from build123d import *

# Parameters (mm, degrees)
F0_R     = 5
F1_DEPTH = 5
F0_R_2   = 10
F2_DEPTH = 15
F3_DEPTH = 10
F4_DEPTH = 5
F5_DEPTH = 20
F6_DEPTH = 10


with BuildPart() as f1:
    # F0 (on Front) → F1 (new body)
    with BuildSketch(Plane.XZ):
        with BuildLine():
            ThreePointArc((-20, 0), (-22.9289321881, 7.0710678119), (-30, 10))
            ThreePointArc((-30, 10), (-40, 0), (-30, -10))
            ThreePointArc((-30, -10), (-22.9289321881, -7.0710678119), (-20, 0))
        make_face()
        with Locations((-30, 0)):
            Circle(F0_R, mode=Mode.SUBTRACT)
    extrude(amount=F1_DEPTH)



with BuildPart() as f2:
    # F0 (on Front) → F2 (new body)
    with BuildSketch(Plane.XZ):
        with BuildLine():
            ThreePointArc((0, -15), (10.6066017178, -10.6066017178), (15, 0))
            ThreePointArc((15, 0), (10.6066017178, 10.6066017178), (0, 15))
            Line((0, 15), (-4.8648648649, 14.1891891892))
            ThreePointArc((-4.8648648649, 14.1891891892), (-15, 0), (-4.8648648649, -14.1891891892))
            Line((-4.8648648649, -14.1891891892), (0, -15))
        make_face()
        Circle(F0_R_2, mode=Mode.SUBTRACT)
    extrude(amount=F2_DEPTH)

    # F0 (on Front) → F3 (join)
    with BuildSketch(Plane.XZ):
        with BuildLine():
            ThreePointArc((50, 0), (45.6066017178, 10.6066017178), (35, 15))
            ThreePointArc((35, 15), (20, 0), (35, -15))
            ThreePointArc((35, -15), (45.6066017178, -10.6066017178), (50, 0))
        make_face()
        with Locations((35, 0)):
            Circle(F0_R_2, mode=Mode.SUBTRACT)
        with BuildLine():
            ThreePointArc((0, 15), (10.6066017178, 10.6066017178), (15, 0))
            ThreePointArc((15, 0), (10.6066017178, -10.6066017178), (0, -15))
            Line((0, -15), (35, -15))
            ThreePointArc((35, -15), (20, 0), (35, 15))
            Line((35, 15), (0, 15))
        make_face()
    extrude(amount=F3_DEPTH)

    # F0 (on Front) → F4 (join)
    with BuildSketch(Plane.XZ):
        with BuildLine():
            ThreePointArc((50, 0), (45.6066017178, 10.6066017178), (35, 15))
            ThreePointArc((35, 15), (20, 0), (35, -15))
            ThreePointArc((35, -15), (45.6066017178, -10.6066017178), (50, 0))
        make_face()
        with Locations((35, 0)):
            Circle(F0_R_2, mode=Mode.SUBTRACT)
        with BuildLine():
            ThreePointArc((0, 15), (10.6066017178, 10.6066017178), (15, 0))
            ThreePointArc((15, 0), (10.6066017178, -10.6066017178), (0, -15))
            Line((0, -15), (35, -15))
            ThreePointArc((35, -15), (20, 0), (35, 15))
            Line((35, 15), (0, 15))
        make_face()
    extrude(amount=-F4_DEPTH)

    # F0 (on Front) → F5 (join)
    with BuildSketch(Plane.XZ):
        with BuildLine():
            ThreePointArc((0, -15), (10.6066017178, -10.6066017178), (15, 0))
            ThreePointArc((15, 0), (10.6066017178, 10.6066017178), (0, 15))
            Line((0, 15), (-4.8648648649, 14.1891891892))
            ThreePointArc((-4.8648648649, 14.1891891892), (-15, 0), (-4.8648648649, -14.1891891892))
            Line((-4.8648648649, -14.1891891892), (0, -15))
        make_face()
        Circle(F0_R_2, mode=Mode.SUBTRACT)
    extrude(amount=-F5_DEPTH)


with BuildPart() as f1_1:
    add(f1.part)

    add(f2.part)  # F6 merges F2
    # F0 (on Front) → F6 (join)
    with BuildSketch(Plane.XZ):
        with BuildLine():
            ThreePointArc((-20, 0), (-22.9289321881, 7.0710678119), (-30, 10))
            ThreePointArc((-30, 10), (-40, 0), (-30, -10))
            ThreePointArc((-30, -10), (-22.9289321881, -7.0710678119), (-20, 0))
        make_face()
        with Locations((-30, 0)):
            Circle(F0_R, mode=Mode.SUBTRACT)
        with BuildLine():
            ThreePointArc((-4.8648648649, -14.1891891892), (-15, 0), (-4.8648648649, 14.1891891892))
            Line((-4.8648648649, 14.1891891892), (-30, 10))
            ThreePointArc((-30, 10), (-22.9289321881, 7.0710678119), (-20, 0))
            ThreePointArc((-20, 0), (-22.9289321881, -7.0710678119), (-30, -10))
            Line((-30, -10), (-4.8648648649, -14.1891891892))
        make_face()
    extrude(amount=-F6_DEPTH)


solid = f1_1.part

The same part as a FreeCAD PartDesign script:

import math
import FreeCAD as App
import Part
import Sketcher
Q = App.Units.Quantity

doc = App.newDocument("Part")
params = doc.addObject("Spreadsheet::Sheet", "Params")
for row, (alias, value) in enumerate([
    ("sketch1_diameter", "10 mm"),
    ("sketch1_radius", "10 mm"),
    ("pad1_length", "5 mm"),
    ("sketch2_diameter", "20 mm"),
    ("sketch2_radius", "15 mm"),
    ("pad2_length", "15 mm"),
    ("sketch3_diameter", "20 mm"),
    ("sketch3_radius", "15 mm"),
    ("sketch3_width", "35 mm"),
    ("pad3_length", "10 mm"),
    ("sketch4_diameter", "20 mm"),
    ("sketch4_radius", "15 mm"),
    ("sketch4_width", "35 mm"),
    ("pad4_length", "5 mm"),
    ("sketch5_diameter", "20 mm"),
    ("sketch5_radius", "15 mm"),
    ("pad5_length", "20 mm"),
    ("sketch6_diameter", "10 mm"),
    ("sketch6_radius", "10 mm"),
    ("sketch6_radius2", "15 mm"),
    ("pad6_length", "10 mm"),
], start=1):
    params.set(f"A{row}", alias)
    params.set(f"B{row}", "=" + value)
    params.setAlias(f"B{row}", alias)

body = doc.addObject("PartDesign::Body", "Body")

# Sketch on XZ plane
sketch1 = doc.addObject("Sketcher::SketchObject", "Sketch")
body.addObject(sketch1)
sketch1.AttachmentSupport = (doc.XZ_Plane, [""])
sketch1.MapMode = "FlatFace"
sketch1.addGeometry(Part.ArcOfCircle(Part.Circle(App.Vector(-30, 0, 0), App.Vector(0, 0, 1), 10), math.radians(0), math.radians(90)), False)
sketch1.addGeometry(Part.ArcOfCircle(Part.Circle(App.Vector(-30, 0, 0), App.Vector(0, 0, 1), 10), math.radians(90), math.radians(270)), False)
sketch1.addGeometry(Part.ArcOfCircle(Part.Circle(App.Vector(-30, 0, 0), App.Vector(0, 0, 1), 10), math.radians(-90), math.radians(0)), False)
sketch1.addGeometry(Part.Circle(App.Vector(-30, 0, 0), App.Vector(0, 0, 1), 5), False)
sketch1.addConstraint(Sketcher.Constraint("Tangent", 0, 2, 1, 1))
sketch1.addConstraint(Sketcher.Constraint("Tangent", 1, 2, 2, 1))
sketch1.addConstraint(Sketcher.Constraint("Tangent", 2, 2, 0, 1))
sketch1.addConstraint(Sketcher.Constraint("Coincident", 3, 3, 0, 3))
sketch1.addConstraint(Sketcher.Constraint("Symmetric", 0, 2, 1, 2, -1))
sketch1.addConstraint(Sketcher.Constraint("PointOnObject", 2, 2, -1))
sketch1.addConstraint(Sketcher.Constraint("Vertical", 3, 3, 0, 2))
sketch1.addConstraint(Sketcher.Constraint("Diameter", 3, Q("10 mm")))
sketch1.addConstraint(Sketcher.Constraint("Radius", 0, Q("10 mm")))
sketch1.addConstraint(Sketcher.Constraint("DistanceX", 0, 3, -1, 1, Q("30 mm")))
sketch1.setExpression("Constraints[7]", "Params.sketch1_diameter")
sketch1.setExpression("Constraints[8]", "Params.sketch1_radius")
pad1 = doc.addObject("PartDesign::Pad", "Pad")
body.addObject(pad1)
pad1.Profile = sketch1
pad1.setExpression("Length", "Params.pad1_length")
body2 = doc.addObject("PartDesign::Body", "Body001")

# Sketch on XZ plane
sketch2 = doc.addObject("Sketcher::SketchObject", "Sketch001")
body2.addObject(sketch2)
sketch2.AttachmentSupport = (doc.getObject("XZ_Plane001"), [""])
sketch2.MapMode = "FlatFace"
sketch2.addGeometry(Part.ArcOfCircle(Part.Circle(App.Vector(0, 0, 0), App.Vector(0, 0, 1), 15), math.radians(-90), math.radians(90)), False)
sketch2.addGeometry(Part.LineSegment(App.Vector(0, 15, 0), App.Vector(-4.9, 14.2, 0)), False)
sketch2.addGeometry(Part.ArcOfCircle(Part.Circle(App.Vector(0, 0, 0), App.Vector(0, 0, 1), 15), math.radians(109), math.radians(251)), False)
sketch2.addGeometry(Part.LineSegment(App.Vector(-4.9, -14.2, 0), App.Vector(0, -15, 0)), False)
sketch2.addGeometry(Part.Circle(App.Vector(0, 0, 0), App.Vector(0, 0, 1), 10), False)
sketch2.addConstraint(Sketcher.Constraint("Coincident", 0, 2, 1, 1))
sketch2.addConstraint(Sketcher.Constraint("Coincident", 1, 2, 2, 1))
sketch2.addConstraint(Sketcher.Constraint("Coincident", 2, 2, 3, 1))
sketch2.addConstraint(Sketcher.Constraint("Coincident", 3, 2, 0, 1))
sketch2.addConstraint(Sketcher.Constraint("Coincident", 0, 3, -1, 1))
sketch2.addConstraint(Sketcher.Constraint("Coincident", 2, 3, -1, 1))
sketch2.addConstraint(Sketcher.Constraint("Coincident", 4, 3, -1, 1))
sketch2.addConstraint(Sketcher.Constraint("Equal", 0, 2))
sketch2.addConstraint(Sketcher.Constraint("PointOnObject", 0, 2, -2))
sketch2.addConstraint(Sketcher.Constraint("PointOnObject", 3, 2, -2))
sketch2.addConstraint(Sketcher.Constraint("Vertical", 1, 2, 2, 2))
sketch2.addConstraint(Sketcher.Constraint("Diameter", 4, Q("20 mm")))
sketch2.addConstraint(Sketcher.Constraint("Radius", 0, Q("15 mm")))
sketch2.addConstraint(Sketcher.Constraint("Distance", 1, Q("4.93197 mm")))
sketch2.setExpression("Constraints[11]", "Params.sketch2_diameter")
sketch2.setExpression("Constraints[12]", "Params.sketch2_radius")
pad2 = doc.addObject("PartDesign::Pad", "Pad001")
body2.addObject(pad2)
pad2.Profile = sketch2
pad2.setExpression("Length", "Params.pad2_length")

# Sketch on XZ plane
sketch3 = doc.addObject("Sketcher::SketchObject", "Sketch002")
body2.addObject(sketch3)
sketch3.AttachmentSupport = (doc.getObject("XZ_Plane001"), [""])
sketch3.MapMode = "FlatFace"
sketch3.addGeometry(Part.ArcOfCircle(Part.Circle(App.Vector(35, 0, 0), App.Vector(0, 0, 1), 15), math.radians(-90), math.radians(90)), False)
sketch3.addGeometry(Part.LineSegment(App.Vector(35, 15, 0), App.Vector(0, 15, 0)), False)
sketch3.addGeometry(Part.ArcOfCircle(Part.Circle(App.Vector(0, 0, 0), App.Vector(0, 0, 1), 15), math.radians(-90), math.radians(90)), False)
sketch3.addGeometry(Part.LineSegment(App.Vector(0, -15, 0), App.Vector(35, -15, 0)), False)
sketch3.addGeometry(Part.Circle(App.Vector(35, 0, 0), App.Vector(0, 0, 1), 10), False)
sketch3.addConstraint(Sketcher.Constraint("Tangent", 0, 2, 1, 1))
sketch3.addConstraint(Sketcher.Constraint("Tangent", 1, 2, 2, 2))
sketch3.addConstraint(Sketcher.Constraint("Tangent", 2, 1, 3, 1))
sketch3.addConstraint(Sketcher.Constraint("Tangent", 3, 2, 0, 1))
sketch3.addConstraint(Sketcher.Constraint("Horizontal", 1))
sketch3.addConstraint(Sketcher.Constraint("Horizontal", 3))
sketch3.addConstraint(Sketcher.Constraint("Coincident", 2, 3, -1, 1))
sketch3.addConstraint(Sketcher.Constraint("Coincident", 4, 3, 0, 3))
sketch3.addConstraint(Sketcher.Constraint("Diameter", 4, Q("20 mm")))
sketch3.addConstraint(Sketcher.Constraint("Radius", 0, Q("15 mm")))
sketch3.addConstraint(Sketcher.Constraint("DistanceX", 1, 2, 1, 1, Q("35 mm")))
sketch3.setExpression("Constraints[8]", "Params.sketch3_diameter")
sketch3.setExpression("Constraints[9]", "Params.sketch3_radius")
sketch3.setExpression("Constraints[10]", "Params.sketch3_width")
pad3 = doc.addObject("PartDesign::Pad", "Pad002")
body2.addObject(pad3)
pad3.Profile = sketch3
pad3.setExpression("Length", "Params.pad3_length")

# Sketch on XZ plane
sketch4 = doc.addObject("Sketcher::SketchObject", "Sketch003")
body2.addObject(sketch4)
sketch4.AttachmentSupport = (doc.getObject("XZ_Plane001"), [""])
sketch4.MapMode = "FlatFace"
sketch4.addGeometry(Part.ArcOfCircle(Part.Circle(App.Vector(35, 0, 0), App.Vector(0, 0, 1), 15), math.radians(-90), math.radians(90)), False)
sketch4.addGeometry(Part.LineSegment(App.Vector(35, 15, 0), App.Vector(0, 15, 0)), False)
sketch4.addGeometry(Part.ArcOfCircle(Part.Circle(App.Vector(0, 0, 0), App.Vector(0, 0, 1), 15), math.radians(-90), math.radians(90)), False)
sketch4.addGeometry(Part.LineSegment(App.Vector(0, -15, 0), App.Vector(35, -15, 0)), False)
sketch4.addGeometry(Part.Circle(App.Vector(35, 0, 0), App.Vector(0, 0, 1), 10), False)
sketch4.addConstraint(Sketcher.Constraint("Tangent", 0, 2, 1, 1))
sketch4.addConstraint(Sketcher.Constraint("Tangent", 1, 2, 2, 2))
sketch4.addConstraint(Sketcher.Constraint("Tangent", 2, 1, 3, 1))
sketch4.addConstraint(Sketcher.Constraint("Tangent", 3, 2, 0, 1))
sketch4.addConstraint(Sketcher.Constraint("Horizontal", 1))
sketch4.addConstraint(Sketcher.Constraint("Horizontal", 3))
sketch4.addConstraint(Sketcher.Constraint("Coincident", 2, 3, -1, 1))
sketch4.addConstraint(Sketcher.Constraint("Coincident", 4, 3, 0, 3))
sketch4.addConstraint(Sketcher.Constraint("Diameter", 4, Q("20 mm")))
sketch4.addConstraint(Sketcher.Constraint("Radius", 0, Q("15 mm")))
sketch4.addConstraint(Sketcher.Constraint("DistanceX", 1, 2, 1, 1, Q("35 mm")))
sketch4.setExpression("Constraints[8]", "Params.sketch4_diameter")
sketch4.setExpression("Constraints[9]", "Params.sketch4_radius")
sketch4.setExpression("Constraints[10]", "Params.sketch4_width")
pad4 = doc.addObject("PartDesign::Pad", "Pad003")
body2.addObject(pad4)
pad4.Profile = sketch4
pad4.setExpression("Length", "Params.pad4_length")
pad4.Reversed = True

# Sketch on XZ plane
sketch5 = doc.addObject("Sketcher::SketchObject", "Sketch004")
body2.addObject(sketch5)
sketch5.AttachmentSupport = (doc.getObject("XZ_Plane001"), [""])
sketch5.MapMode = "FlatFace"
sketch5.addGeometry(Part.ArcOfCircle(Part.Circle(App.Vector(0, 0, 0), App.Vector(0, 0, 1), 15), math.radians(-90), math.radians(90)), False)
sketch5.addGeometry(Part.LineSegment(App.Vector(0, 15, 0), App.Vector(-4.9, 14.2, 0)), False)
sketch5.addGeometry(Part.ArcOfCircle(Part.Circle(App.Vector(0, 0, 0), App.Vector(0, 0, 1), 15), math.radians(109), math.radians(251)), False)
sketch5.addGeometry(Part.LineSegment(App.Vector(-4.9, -14.2, 0), App.Vector(0, -15, 0)), False)
sketch5.addGeometry(Part.Circle(App.Vector(0, 0, 0), App.Vector(0, 0, 1), 10), False)
sketch5.addConstraint(Sketcher.Constraint("Coincident", 0, 2, 1, 1))
sketch5.addConstraint(Sketcher.Constraint("Coincident", 1, 2, 2, 1))
sketch5.addConstraint(Sketcher.Constraint("Coincident", 2, 2, 3, 1))
sketch5.addConstraint(Sketcher.Constraint("Coincident", 3, 2, 0, 1))
sketch5.addConstraint(Sketcher.Constraint("Coincident", 0, 3, -1, 1))
sketch5.addConstraint(Sketcher.Constraint("Coincident", 2, 3, -1, 1))
sketch5.addConstraint(Sketcher.Constraint("Coincident", 4, 3, -1, 1))
sketch5.addConstraint(Sketcher.Constraint("Equal", 0, 2))
sketch5.addConstraint(Sketcher.Constraint("PointOnObject", 0, 2, -2))
sketch5.addConstraint(Sketcher.Constraint("PointOnObject", 3, 2, -2))
sketch5.addConstraint(Sketcher.Constraint("Vertical", 1, 2, 2, 2))
sketch5.addConstraint(Sketcher.Constraint("Diameter", 4, Q("20 mm")))
sketch5.addConstraint(Sketcher.Constraint("Radius", 0, Q("15 mm")))
sketch5.addConstraint(Sketcher.Constraint("Distance", 1, Q("4.93197 mm")))
sketch5.setExpression("Constraints[11]", "Params.sketch5_diameter")
sketch5.setExpression("Constraints[12]", "Params.sketch5_radius")
pad5 = doc.addObject("PartDesign::Pad", "Pad004")
body2.addObject(pad5)
pad5.Profile = sketch5
pad5.setExpression("Length", "Params.pad5_length")
pad5.Reversed = True
body.AllowCompound = True
doc.recompute()

boolean = doc.addObject("PartDesign::Boolean", "Boolean")
body.addObject(boolean)
boolean.Type = "Fuse"
boolean.addObjects([body2])

# Sketch on XZ plane
sketch6 = doc.addObject("Sketcher::SketchObject", "Sketch005")
body.addObject(sketch6)
sketch6.AttachmentSupport = (doc.XZ_Plane, [""])
sketch6.MapMode = "FlatFace"
sketch6.addGeometry(Part.ArcOfCircle(Part.Circle(App.Vector(-30, 0, 0), App.Vector(0, 0, 1), 10), math.radians(90), math.radians(270)), False)
sketch6.addGeometry(Part.LineSegment(App.Vector(-30, -10, 0), App.Vector(-5, -14, 0)), False)
sketch6.addGeometry(Part.ArcOfCircle(Part.Circle(App.Vector(0, 0, 0), App.Vector(0, 0, 1), 15), math.radians(109), math.radians(251)), False)
sketch6.addGeometry(Part.LineSegment(App.Vector(-5, 14, 0), App.Vector(-30, 10, 0)), False)
sketch6.addGeometry(Part.Circle(App.Vector(-30, 0, 0), App.Vector(0, 0, 1), 5), False)
sketch6.addConstraint(Sketcher.Constraint("Coincident", 0, 2, 1, 1))
sketch6.addConstraint(Sketcher.Constraint("Coincident", 1, 2, 2, 2))
sketch6.addConstraint(Sketcher.Constraint("Coincident", 2, 1, 3, 1))
sketch6.addConstraint(Sketcher.Constraint("Coincident", 3, 2, 0, 1))
sketch6.addConstraint(Sketcher.Constraint("Coincident", 2, 3, -1, 1))
sketch6.addConstraint(Sketcher.Constraint("Coincident", 4, 3, 0, 3))
sketch6.addConstraint(Sketcher.Constraint("Symmetric", 0, 2, 3, 2, -1))
sketch6.addConstraint(Sketcher.Constraint("Vertical", 4, 3, 0, 2))
sketch6.addConstraint(Sketcher.Constraint("Vertical", 1, 2, 2, 1))
sketch6.addConstraint(Sketcher.Constraint("Diameter", 4, Q("10 mm")))
sketch6.addConstraint(Sketcher.Constraint("Radius", 0, Q("10 mm")))
sketch6.addConstraint(Sketcher.Constraint("Radius", 2, Q("15 mm")))
sketch6.addConstraint(Sketcher.Constraint("DistanceX", 0, 3, -1, 1, Q("30 mm")))
sketch6.addConstraint(Sketcher.Constraint("DistanceY", 1, 2, -1, 1, Q("14.189189 mm")))
sketch6.setExpression("Constraints[9]", "Params.sketch6_diameter")
sketch6.setExpression("Constraints[10]", "Params.sketch6_radius")
sketch6.setExpression("Constraints[11]", "Params.sketch6_radius2")
pad6 = doc.addObject("PartDesign::Pad", "Pad005")
body.addObject(pad6)
pad6.Profile = sketch6
pad6.setExpression("Length", "Params.pad6_length")
pad6.Reversed = True

doc.recompute()
